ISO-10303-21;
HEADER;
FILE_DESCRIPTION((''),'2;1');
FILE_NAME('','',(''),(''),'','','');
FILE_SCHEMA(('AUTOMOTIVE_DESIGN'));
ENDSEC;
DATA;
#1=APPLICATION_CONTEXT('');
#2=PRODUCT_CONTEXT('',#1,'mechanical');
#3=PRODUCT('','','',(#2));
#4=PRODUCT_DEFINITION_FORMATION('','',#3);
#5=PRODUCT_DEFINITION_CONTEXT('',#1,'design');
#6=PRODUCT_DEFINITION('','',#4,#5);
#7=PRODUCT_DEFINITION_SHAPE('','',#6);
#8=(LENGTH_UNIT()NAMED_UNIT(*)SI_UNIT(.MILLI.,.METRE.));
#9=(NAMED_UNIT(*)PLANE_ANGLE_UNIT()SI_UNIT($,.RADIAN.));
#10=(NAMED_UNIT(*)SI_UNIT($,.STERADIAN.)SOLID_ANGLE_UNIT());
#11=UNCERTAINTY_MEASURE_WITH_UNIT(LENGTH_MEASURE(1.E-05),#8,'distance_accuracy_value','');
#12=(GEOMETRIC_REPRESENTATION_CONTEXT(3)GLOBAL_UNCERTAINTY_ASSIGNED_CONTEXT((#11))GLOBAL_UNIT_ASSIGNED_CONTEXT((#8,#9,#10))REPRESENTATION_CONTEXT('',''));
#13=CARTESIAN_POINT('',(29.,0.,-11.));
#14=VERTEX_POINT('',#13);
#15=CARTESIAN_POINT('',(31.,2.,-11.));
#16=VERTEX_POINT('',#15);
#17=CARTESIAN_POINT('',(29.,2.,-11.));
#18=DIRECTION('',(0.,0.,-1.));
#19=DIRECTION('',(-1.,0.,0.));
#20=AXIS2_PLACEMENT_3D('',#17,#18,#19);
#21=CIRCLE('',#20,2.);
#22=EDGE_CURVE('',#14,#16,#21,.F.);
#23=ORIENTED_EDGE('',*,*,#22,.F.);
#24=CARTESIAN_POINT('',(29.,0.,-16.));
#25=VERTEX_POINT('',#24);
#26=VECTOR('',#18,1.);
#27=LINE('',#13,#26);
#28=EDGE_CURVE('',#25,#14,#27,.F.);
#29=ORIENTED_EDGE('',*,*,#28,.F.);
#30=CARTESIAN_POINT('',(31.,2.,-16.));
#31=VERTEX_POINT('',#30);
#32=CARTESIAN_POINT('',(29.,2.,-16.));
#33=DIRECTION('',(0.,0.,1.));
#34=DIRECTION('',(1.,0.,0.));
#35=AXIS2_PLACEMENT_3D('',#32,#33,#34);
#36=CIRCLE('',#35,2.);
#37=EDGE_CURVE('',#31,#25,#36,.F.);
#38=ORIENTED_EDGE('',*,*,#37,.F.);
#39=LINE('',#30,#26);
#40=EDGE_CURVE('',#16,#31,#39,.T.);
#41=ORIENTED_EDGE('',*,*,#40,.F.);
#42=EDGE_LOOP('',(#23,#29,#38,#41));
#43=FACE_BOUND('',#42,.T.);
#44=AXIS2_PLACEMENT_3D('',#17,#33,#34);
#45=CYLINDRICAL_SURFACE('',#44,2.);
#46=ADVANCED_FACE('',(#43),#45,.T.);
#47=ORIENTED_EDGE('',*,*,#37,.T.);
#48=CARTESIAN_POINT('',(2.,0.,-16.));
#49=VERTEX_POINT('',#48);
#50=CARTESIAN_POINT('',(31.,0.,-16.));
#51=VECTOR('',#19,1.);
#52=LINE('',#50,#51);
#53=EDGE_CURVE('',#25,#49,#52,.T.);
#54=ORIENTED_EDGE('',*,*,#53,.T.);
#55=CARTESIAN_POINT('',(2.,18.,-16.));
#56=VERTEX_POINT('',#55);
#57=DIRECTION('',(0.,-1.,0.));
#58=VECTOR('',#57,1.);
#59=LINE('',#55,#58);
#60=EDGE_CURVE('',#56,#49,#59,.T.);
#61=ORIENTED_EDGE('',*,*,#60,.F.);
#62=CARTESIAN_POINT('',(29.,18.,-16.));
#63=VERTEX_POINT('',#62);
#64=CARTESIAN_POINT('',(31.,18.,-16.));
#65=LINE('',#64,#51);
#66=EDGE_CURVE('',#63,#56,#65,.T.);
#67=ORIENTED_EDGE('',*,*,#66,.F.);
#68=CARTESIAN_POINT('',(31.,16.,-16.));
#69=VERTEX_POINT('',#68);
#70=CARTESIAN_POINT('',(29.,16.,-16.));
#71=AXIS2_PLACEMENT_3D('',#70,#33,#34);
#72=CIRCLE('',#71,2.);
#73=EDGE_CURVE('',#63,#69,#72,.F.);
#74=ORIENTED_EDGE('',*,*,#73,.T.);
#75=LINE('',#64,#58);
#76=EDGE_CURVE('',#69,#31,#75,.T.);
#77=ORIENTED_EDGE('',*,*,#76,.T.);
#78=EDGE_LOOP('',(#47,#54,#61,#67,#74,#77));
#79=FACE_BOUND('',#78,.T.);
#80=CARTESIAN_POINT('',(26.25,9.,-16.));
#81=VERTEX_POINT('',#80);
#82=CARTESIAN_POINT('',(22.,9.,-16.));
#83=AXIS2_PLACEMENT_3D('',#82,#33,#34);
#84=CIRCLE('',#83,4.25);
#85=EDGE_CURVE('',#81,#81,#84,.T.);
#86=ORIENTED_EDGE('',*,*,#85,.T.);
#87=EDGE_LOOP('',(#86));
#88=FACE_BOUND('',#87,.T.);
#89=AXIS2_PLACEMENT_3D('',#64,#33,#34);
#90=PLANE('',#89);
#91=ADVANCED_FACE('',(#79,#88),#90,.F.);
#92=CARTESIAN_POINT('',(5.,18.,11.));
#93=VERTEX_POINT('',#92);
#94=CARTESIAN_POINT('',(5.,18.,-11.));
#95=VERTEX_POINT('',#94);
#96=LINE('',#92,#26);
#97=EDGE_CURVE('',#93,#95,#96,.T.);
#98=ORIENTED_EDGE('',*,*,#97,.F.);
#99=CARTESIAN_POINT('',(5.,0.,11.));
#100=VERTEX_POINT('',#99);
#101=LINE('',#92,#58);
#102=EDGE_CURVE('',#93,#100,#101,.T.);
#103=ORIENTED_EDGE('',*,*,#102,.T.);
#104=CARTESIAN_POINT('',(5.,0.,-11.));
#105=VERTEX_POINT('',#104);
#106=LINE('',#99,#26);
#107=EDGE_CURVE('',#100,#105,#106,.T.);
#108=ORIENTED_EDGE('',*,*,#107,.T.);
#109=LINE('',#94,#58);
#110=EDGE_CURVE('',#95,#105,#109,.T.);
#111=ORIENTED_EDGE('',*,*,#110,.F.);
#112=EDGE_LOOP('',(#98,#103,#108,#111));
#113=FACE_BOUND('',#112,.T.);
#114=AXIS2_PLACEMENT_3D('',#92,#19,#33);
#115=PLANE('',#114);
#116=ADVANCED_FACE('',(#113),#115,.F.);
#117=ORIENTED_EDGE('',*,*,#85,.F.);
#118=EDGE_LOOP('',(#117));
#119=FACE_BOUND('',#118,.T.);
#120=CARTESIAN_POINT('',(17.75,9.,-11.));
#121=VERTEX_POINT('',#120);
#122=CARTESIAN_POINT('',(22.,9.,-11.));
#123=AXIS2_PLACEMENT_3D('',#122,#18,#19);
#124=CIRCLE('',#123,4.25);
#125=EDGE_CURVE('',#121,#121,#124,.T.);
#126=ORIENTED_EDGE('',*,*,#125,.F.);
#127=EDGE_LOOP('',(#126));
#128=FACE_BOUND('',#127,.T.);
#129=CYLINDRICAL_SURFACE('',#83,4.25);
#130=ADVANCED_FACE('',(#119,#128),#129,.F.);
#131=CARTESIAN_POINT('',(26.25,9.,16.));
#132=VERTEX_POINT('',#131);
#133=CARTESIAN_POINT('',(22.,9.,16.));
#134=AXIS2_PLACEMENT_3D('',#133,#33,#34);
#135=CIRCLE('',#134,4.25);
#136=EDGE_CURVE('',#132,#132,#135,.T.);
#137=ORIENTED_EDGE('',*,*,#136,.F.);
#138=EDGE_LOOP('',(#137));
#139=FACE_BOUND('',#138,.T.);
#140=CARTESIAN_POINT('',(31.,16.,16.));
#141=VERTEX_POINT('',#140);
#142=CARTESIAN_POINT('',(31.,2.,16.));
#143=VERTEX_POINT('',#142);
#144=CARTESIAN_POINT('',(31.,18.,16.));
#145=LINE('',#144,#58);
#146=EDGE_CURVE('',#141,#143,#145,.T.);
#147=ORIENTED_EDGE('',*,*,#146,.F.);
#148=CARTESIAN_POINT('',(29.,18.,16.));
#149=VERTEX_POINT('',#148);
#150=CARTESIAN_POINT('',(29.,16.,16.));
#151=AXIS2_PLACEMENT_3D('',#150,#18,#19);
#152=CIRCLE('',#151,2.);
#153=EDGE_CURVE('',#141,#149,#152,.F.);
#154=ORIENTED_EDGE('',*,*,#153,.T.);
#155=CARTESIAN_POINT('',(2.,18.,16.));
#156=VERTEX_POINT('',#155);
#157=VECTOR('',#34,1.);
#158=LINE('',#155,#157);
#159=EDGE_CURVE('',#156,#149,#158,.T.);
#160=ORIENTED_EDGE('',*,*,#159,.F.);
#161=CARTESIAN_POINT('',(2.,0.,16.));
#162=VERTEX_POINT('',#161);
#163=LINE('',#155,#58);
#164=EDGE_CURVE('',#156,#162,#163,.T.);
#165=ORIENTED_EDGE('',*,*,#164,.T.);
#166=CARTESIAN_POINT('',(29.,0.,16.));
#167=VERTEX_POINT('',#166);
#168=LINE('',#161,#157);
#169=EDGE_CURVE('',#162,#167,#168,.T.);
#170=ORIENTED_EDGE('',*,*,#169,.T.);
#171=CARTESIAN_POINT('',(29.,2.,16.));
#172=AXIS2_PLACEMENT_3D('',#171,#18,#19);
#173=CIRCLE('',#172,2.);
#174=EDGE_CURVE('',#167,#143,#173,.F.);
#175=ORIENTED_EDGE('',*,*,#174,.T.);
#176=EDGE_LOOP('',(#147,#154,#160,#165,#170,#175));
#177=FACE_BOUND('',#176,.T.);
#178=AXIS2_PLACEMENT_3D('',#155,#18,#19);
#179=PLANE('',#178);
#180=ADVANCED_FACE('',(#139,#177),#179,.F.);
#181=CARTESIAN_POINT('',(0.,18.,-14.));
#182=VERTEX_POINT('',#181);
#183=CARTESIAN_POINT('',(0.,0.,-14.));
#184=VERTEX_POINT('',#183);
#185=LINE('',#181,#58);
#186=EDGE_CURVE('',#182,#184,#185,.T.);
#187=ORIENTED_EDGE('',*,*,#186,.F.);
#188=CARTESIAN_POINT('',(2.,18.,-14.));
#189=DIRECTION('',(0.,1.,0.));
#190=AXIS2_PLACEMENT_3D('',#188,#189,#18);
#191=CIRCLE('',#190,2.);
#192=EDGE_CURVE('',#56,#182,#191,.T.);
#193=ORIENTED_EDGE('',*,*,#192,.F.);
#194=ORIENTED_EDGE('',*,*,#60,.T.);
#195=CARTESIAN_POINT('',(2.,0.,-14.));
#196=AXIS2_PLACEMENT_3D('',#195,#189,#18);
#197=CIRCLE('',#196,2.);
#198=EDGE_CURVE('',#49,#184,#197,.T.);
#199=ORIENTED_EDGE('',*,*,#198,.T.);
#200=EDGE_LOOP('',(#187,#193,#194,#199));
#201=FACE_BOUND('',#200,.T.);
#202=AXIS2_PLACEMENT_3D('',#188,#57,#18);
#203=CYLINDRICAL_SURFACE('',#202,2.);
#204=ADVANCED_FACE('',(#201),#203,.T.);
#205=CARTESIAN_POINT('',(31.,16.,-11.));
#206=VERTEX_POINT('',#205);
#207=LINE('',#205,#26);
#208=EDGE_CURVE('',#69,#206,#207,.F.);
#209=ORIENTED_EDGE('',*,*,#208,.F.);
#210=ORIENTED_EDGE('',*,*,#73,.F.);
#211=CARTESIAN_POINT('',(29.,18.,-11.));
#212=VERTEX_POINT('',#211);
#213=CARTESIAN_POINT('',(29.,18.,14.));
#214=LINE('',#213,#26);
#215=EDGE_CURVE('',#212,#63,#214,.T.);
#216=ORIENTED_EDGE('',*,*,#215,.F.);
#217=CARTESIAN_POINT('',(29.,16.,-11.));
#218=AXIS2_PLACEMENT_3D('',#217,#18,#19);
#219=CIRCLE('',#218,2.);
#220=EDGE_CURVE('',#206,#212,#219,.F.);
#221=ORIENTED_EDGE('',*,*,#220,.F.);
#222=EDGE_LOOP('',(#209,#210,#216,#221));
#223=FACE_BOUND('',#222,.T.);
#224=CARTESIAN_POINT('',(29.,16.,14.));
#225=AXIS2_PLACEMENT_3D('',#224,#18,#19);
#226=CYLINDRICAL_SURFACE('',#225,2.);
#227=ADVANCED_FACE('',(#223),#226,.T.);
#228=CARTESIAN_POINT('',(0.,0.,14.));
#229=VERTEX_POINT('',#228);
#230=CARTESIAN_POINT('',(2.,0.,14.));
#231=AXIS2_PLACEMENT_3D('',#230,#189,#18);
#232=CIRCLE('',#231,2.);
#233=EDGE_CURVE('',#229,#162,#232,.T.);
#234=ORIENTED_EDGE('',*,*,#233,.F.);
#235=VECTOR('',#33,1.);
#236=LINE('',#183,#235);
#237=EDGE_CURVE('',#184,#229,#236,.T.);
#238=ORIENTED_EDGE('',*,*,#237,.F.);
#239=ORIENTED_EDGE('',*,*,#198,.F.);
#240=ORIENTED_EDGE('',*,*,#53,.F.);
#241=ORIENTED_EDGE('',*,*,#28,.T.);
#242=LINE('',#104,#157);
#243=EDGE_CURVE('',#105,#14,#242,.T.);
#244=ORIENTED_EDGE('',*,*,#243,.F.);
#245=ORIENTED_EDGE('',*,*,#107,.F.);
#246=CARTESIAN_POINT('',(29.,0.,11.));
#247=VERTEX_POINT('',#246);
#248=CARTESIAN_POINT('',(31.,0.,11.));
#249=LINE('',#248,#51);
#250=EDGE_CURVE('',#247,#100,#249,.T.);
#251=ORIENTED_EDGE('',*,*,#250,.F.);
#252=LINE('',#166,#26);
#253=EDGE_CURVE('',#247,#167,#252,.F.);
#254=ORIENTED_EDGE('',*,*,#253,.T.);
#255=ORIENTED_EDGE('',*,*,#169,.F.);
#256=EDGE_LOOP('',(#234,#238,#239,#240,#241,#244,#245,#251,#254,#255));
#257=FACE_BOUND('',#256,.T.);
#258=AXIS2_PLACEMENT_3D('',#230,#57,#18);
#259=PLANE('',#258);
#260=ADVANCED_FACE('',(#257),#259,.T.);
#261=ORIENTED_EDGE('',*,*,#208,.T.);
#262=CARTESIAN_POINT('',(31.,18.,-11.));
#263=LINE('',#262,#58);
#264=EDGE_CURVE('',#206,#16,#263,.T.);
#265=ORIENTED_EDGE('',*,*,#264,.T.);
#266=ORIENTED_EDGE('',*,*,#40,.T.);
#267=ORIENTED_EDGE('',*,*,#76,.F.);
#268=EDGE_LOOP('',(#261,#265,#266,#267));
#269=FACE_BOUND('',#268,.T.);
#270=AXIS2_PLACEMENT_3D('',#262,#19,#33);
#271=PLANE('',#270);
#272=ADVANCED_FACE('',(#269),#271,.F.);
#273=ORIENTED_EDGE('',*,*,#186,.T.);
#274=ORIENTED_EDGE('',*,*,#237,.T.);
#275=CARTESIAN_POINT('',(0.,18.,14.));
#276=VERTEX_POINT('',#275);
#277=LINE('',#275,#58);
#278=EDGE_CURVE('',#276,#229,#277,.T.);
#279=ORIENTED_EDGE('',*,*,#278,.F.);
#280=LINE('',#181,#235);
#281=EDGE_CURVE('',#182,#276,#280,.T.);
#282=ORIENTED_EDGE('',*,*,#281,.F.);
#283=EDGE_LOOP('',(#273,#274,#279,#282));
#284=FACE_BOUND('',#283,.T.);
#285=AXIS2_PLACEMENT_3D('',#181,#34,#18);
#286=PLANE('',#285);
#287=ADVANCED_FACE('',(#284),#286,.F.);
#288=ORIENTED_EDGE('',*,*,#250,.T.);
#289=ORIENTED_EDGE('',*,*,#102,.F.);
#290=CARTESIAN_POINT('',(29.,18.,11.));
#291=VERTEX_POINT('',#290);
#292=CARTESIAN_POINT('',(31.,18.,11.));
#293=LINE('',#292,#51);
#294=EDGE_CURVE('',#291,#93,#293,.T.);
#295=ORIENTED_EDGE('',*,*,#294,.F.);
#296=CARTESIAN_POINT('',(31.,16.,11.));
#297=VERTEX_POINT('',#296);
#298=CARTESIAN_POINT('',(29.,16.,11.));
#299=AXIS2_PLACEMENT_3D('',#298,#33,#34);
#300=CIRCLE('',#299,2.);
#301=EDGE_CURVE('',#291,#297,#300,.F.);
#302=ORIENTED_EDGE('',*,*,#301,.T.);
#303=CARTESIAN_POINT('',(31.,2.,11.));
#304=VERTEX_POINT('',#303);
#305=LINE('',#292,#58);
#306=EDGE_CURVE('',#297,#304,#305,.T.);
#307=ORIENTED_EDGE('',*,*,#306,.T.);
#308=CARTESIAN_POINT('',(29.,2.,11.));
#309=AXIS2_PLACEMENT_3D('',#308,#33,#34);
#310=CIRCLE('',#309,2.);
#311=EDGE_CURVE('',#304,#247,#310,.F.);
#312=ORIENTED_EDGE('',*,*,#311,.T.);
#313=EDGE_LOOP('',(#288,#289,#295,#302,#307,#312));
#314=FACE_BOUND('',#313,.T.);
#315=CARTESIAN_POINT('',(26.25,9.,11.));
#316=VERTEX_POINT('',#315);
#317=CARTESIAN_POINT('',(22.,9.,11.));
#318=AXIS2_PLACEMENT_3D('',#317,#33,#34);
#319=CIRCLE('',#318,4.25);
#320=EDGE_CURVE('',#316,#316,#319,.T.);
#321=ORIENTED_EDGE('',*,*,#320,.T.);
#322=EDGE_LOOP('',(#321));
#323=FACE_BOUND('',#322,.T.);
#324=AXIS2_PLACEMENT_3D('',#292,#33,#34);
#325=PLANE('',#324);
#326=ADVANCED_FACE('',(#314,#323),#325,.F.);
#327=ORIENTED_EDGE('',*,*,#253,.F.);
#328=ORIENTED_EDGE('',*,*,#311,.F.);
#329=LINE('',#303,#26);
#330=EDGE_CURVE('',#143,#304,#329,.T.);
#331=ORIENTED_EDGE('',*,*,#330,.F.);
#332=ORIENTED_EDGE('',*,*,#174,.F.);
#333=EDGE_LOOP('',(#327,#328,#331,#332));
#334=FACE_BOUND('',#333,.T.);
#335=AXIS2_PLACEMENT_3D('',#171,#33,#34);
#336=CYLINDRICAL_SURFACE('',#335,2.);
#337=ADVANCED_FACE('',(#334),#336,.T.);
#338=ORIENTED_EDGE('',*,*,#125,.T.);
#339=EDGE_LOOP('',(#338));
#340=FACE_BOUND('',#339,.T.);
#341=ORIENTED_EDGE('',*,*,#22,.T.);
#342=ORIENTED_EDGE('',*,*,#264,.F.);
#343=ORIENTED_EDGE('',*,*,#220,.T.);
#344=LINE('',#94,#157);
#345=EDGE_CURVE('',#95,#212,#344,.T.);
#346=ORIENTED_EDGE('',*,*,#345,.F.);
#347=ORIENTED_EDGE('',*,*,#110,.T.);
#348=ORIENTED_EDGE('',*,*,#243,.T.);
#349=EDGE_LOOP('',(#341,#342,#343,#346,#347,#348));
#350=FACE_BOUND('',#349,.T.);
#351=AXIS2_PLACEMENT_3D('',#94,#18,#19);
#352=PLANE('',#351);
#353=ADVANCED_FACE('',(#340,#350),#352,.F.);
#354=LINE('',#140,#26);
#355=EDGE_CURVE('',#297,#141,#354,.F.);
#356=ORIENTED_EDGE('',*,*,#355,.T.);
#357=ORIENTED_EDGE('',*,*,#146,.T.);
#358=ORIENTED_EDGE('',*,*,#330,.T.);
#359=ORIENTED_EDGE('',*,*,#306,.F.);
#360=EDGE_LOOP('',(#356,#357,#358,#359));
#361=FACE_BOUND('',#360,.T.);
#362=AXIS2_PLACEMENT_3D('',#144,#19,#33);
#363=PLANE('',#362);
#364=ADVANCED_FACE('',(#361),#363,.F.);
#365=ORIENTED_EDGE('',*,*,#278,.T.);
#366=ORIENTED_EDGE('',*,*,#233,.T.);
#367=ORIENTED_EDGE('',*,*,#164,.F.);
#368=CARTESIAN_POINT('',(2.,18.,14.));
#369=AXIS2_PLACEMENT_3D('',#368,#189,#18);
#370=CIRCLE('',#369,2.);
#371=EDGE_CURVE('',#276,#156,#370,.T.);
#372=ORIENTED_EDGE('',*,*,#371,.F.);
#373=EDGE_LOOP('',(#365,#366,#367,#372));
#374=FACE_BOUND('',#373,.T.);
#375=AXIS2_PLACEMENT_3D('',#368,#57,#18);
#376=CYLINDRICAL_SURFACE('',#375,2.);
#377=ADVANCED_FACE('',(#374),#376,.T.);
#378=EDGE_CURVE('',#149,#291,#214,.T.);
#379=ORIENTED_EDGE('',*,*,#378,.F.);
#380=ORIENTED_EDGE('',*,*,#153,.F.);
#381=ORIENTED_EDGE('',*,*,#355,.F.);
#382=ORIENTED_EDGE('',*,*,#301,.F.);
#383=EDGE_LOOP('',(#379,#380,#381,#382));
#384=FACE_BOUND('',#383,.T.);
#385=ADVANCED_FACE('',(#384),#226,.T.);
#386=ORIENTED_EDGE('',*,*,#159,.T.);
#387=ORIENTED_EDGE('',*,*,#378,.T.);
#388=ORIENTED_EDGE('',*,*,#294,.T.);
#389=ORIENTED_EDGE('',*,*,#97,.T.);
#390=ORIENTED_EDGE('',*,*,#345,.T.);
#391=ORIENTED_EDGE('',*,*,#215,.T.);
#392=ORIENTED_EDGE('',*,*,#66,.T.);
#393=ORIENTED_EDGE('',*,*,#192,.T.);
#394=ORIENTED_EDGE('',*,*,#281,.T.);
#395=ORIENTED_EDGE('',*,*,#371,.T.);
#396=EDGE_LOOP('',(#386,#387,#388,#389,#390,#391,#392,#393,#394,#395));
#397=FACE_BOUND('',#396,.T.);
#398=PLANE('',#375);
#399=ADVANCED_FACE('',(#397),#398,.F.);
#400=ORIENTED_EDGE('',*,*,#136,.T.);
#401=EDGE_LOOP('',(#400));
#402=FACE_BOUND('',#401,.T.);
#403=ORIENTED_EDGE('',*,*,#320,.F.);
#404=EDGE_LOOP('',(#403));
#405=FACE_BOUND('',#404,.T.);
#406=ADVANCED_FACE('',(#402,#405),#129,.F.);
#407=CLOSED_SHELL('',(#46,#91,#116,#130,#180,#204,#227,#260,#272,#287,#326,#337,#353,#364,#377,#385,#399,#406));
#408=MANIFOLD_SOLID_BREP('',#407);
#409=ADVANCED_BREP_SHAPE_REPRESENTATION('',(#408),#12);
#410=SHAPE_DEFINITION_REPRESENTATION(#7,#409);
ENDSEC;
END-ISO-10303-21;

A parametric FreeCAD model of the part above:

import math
import FreeCAD as App
import Part
import Sketcher

V = App.Vector


def edges_at(feature, points):
    """Names of the edges that pass closest to the given points."""
    edges = feature.Shape.Edges
    near = lambda p: min(range(len(edges)), key=lambda i: edges[i].distToShape(Part.Vertex(*p))[0])
    return sorted({f"Edge{near(p) + 1}" for p in points})

doc = App.newDocument("Part")
body = doc.addObject("PartDesign::Body", "Body")

# Sketch on XZ plane
sketch1 = body.newObject("Sketcher::SketchObject", "Sketch")
sketch1.AttachmentSupport = (doc.getObject("XZ_Plane"), [""])
sketch1.MapMode = "FlatFace"
sketch1.addGeometry([
    Part.LineSegment(V(0, -14, 0), V(0, 14, 0)),  # 0
    Part.ArcOfCircle(Part.Circle(V(2, 14, 0), V(0, 0, 1), 2), math.radians(90), math.radians(180)),  # 1
    Part.LineSegment(V(2, 16, 0), V(31, 16, 0)),  # 2
    Part.LineSegment(V(31, 16, 0), V(31, 11, 0)),  # 3
    Part.LineSegment(V(31, 11, 0), V(5, 11, 0)),  # 4
    Part.LineSegment(V(5, 11, 0), V(5, -11, 0)),  # 5
    Part.LineSegment(V(5, -11, 0), V(31, -11, 0)),  # 6
    Part.LineSegment(V(31, -11, 0), V(31, -16, 0)),  # 7
    Part.LineSegment(V(31, -16, 0), V(2, -16, 0)),  # 8
    Part.ArcOfCircle(Part.Circle(V(2, -14, 0), V(0, 0, 1), 2), math.radians(-180), math.radians(-90)),  # 9
], False)
sketch1.addConstraint([
    Sketcher.Constraint("Tangent", 0, 2, 1, 2),
    Sketcher.Constraint("Tangent", 1, 1, 2, 1),
    Sketcher.Constraint("Coincident", 2, 2, 3, 1),
    Sketcher.Constraint("Coincident", 3, 2, 4, 1),
    Sketcher.Constraint("Coincident", 4, 2, 5, 1),
    Sketcher.Constraint("Coincident", 5, 2, 6, 1),
    Sketcher.Constraint("Coincident", 6, 2, 7, 1),
    Sketcher.Constraint("Coincident", 7, 2, 8, 1),
    Sketcher.Constraint("Tangent", 8, 2, 9, 2),
    Sketcher.Constraint("Tangent", 9, 1, 0, 1),
    Sketcher.Constraint("Vertical", 0),
    Sketcher.Constraint("Horizontal", 2),
    Sketcher.Constraint("Vertical", 3),
    Sketcher.Constraint("Horizontal", 4),
    Sketcher.Constraint("Vertical", 5),
    Sketcher.Constraint("Horizontal", 6),
    Sketcher.Constraint("Vertical", 7),
    Sketcher.Constraint("Horizontal", 8),
    Sketcher.Constraint("Equal", 1, 9),
    Sketcher.Constraint("Symmetric", 0, 2, 9, 1, -1, 1),
    Sketcher.Constraint("Symmetric", 3, 2, 6, 2, -1),
    Sketcher.Constraint("Radius", 1, 2.0),
    Sketcher.Constraint("DistanceX", 2, 1, 2, 2, 29.0),
    Sketcher.Constraint("DistanceX", 4, 2, 4, 1, 26.0),
    Sketcher.Constraint("DistanceY", 0, 1, 0, 2, 28.0),
    Sketcher.Constraint("DistanceY", 3, 2, 3, 1, 5.0),
])
pad1 = body.newObject("PartDesign::Pad", "Pad")
pad1.Profile = sketch1
pad1.Length = 18
pad1.Reversed = True
doc.recompute()

fillet = body.newObject("PartDesign::Fillet", "Fillet")
fillet.Base = (pad1, edges_at(pad1, [
    (31, 18, 13.5),
    (31, 0, -13.5),
    (31, 0, 13.5),
    (31, 18, -13.5),
]))
fillet.Radius = 2

# Sketch on XY plane
sketch2 = body.newObject("Sketcher::SketchObject", "Sketch001")
sketch2.AttachmentSupport = (doc.getObject("XY_Plane"), [""])
sketch2.MapMode = "FlatFace"
sketch2.AttachmentOffset = App.Placement(V(0, 0, 16), App.Rotation())
sketch2.addGeometry(Part.Circle(V(22, 9, 0), V(0, 0, 1), 4.2), False)
sketch2.addConstraint([
    Sketcher.Constraint("Diameter", 0, 8.5),
    Sketcher.Constraint("DistanceX", -1, 1, 0, 3, 22.0),
    Sketcher.Constraint("DistanceY", -1, 1, 0, 3, 9.0),
])
pocket1 = body.newObject("PartDesign::Pocket", "Pocket")
pocket1.Profile = sketch2
pocket1.Type = "ThroughAll"

doc.recompute()
